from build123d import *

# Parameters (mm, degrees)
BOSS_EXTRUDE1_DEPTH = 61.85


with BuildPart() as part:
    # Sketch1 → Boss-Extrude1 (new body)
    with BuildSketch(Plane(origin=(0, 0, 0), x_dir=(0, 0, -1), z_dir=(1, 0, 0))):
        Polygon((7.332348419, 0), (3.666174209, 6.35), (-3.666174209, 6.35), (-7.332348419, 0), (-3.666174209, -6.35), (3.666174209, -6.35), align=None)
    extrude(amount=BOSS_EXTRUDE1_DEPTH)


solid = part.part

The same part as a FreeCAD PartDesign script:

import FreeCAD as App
import Part
import Sketcher
from FreeCAD import Vector
Q = App.Units.Quantity

doc = App.newDocument("Part")
body = doc.addObject("PartDesign::Body", "Body")

sketch1 = doc.addObject("Sketcher::SketchObject", "Sketch")
body.addObject(sketch1)
sketch1.AttachmentSupport = (doc.YZ_Plane, [""])
sketch1.MapMode = "FlatFace"
sketch1.addGeometry(Part.LineSegment(Vector(0, -7.332348, 0), Vector(6.35, -3.666174, 0)), False)
sketch1.addGeometry(Part.LineSegment(Vector(6.35, -3.666174, 0), Vector(6.35, 3.666174, 0)), False)
sketch1.addGeometry(Part.LineSegment(Vector(6.35, 3.666174, 0), Vector(0, 7.332348, 0)), False)
sketch1.addGeometry(Part.LineSegment(Vector(0, 7.332348, 0), Vector(-6.35, 3.666174, 0)), False)
sketch1.addGeometry(Part.LineSegment(Vector(-6.35, 3.666174, 0), Vector(-6.35, -3.666174, 0)), False)
sketch1.addGeometry(Part.LineSegment(Vector(-6.35, -3.666174, 0), Vector(0, -7.332348, 0)), False)
sketch1.addConstraint(Sketcher.Constraint("Coincident", 0, 2, 1, 1))
sketch1.addConstraint(Sketcher.Constraint("Coincident", 1, 2, 2, 1))
sketch1.addConstraint(Sketcher.Constraint("Coincident", 2, 2, 3, 1))
sketch1.addConstraint(Sketcher.Constraint("Coincident", 3, 2, 4, 1))
sketch1.addConstraint(Sketcher.Constraint("Coincident", 4, 2, 5, 1))
sketch1.addConstraint(Sketcher.Constraint("Coincident", 5, 2, 0, 1))
sketch1.addConstraint(Sketcher.Constraint("Vertical", 1))
sketch1.addConstraint(Sketcher.Constraint("Vertical", 4))
sketch1.addConstraint(Sketcher.Constraint("Symmetric", 0, 2, 3, 2, -1, 1))
sketch1.addConstraint(Sketcher.Constraint("Symmetric", 2, 2, 5, 2, -1, 1))
sketch1.addConstraint(Sketcher.Constraint("PointOnObject", 2, 2, -2))
sketch1.addConstraint(Sketcher.Constraint("Parallel", 2, 5))
sketch1.addConstraint(Sketcher.Constraint("Horizontal", 1, 2, 3, 2))
sketch1.addConstraint(Sketcher.Constraint("Angle", 0, Q("30 deg")))
sketch1.addConstraint(Sketcher.Constraint("DistanceX", 3, 2, 1, 2, 12.7))
sketch1.addConstraint(Sketcher.Constraint("DistanceY", 1, 1, 1, 2, 7.332348))
pad1 = doc.addObject("PartDesign::Pad", "Pad")
body.addObject(pad1)
pad1.Profile = sketch1
pad1.Length = 61.85

doc.recompute()
